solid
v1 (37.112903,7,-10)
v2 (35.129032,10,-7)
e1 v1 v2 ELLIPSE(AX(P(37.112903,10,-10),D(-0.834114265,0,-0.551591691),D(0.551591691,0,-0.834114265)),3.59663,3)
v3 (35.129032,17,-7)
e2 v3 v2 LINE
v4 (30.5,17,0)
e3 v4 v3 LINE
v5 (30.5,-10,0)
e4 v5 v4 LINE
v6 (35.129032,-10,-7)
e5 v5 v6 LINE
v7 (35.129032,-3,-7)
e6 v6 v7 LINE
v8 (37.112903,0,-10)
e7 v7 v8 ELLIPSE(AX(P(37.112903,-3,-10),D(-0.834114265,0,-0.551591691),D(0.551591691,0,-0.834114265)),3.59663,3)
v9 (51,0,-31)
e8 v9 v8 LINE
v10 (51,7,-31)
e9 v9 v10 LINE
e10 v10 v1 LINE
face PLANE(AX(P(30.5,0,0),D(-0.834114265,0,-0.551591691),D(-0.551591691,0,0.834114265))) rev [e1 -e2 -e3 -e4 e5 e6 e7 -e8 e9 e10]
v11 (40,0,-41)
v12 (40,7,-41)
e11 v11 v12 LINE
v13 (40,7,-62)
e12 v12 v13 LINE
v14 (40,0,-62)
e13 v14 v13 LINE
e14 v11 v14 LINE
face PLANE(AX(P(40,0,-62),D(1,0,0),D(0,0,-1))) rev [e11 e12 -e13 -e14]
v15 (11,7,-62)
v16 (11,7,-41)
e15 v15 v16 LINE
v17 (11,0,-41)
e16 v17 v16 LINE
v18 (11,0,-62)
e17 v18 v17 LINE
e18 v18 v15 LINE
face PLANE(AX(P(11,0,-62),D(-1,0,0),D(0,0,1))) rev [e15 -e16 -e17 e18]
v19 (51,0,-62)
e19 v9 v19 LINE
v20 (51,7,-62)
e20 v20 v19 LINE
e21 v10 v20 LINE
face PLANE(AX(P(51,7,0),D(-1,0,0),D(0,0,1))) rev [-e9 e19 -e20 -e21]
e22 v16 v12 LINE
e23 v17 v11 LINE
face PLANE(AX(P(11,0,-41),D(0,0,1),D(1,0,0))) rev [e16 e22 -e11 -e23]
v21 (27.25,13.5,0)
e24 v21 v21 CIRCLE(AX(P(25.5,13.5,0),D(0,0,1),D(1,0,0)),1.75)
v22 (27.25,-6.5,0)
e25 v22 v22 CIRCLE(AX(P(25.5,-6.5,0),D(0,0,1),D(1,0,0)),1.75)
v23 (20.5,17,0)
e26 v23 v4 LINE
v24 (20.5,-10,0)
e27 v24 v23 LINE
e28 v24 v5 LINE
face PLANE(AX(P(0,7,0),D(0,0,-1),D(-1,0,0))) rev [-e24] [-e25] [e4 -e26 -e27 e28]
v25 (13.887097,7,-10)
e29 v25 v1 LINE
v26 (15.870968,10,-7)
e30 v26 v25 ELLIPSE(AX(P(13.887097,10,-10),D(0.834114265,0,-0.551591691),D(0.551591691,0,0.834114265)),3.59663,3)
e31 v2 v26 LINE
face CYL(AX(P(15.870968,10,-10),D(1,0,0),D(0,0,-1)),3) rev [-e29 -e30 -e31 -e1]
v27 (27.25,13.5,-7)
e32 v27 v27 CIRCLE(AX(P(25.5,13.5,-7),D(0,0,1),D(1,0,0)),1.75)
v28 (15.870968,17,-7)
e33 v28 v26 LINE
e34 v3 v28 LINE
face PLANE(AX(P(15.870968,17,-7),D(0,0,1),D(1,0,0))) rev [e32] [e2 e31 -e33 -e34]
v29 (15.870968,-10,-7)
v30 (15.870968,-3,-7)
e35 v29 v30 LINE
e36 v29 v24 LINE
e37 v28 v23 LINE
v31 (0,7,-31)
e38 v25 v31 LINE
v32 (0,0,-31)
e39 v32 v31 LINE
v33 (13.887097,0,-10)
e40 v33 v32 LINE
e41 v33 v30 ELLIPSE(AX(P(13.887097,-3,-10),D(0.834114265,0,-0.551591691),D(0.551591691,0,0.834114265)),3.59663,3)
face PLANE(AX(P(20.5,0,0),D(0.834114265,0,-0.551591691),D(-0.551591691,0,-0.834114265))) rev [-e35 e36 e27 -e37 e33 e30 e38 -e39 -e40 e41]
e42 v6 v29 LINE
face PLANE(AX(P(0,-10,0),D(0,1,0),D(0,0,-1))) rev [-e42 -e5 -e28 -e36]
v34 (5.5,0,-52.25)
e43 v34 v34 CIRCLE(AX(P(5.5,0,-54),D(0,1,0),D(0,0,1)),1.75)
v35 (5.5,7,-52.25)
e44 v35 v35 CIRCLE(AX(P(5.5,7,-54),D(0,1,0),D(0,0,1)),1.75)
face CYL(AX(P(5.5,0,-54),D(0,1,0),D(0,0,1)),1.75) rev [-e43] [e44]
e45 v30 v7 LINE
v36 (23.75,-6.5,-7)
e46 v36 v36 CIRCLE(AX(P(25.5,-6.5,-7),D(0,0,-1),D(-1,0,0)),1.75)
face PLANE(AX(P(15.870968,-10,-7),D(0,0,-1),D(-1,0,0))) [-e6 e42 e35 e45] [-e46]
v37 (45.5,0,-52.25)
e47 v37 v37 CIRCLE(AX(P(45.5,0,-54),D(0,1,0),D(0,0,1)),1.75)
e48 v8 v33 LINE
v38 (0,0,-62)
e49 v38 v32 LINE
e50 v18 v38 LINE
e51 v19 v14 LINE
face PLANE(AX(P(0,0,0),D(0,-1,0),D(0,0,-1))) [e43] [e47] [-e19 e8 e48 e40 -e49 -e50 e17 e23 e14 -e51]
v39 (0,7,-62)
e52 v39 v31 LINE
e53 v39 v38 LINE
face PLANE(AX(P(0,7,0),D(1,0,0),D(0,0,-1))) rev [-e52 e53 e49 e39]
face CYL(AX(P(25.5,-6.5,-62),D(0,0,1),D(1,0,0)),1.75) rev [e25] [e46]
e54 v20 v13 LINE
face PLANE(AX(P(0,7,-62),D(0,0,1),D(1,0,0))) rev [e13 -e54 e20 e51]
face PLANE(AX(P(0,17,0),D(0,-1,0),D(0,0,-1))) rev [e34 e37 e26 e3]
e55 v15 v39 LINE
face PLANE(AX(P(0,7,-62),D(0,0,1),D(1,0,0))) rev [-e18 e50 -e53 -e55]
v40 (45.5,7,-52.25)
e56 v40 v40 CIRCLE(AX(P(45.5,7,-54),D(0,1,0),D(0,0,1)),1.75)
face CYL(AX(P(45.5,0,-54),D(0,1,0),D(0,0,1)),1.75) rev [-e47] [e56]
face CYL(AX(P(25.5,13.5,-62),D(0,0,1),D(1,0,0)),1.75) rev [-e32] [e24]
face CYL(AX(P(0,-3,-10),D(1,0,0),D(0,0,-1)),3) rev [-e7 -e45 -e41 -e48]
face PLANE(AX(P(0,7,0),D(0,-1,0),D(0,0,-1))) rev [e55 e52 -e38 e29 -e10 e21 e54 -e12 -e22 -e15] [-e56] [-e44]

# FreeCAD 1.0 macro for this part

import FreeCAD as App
import Part
import Sketcher

V = App.Vector


def edges_at(feature, points):
    """Names of the edges that pass closest to the given points."""
    edges = feature.Shape.Edges
    near = lambda p: min(range(len(edges)), key=lambda i: edges[i].distToShape(Part.Vertex(*p))[0])
    return sorted({f"Edge{near(p) + 1}" for p in points})


def add_polygon(sketch, points):
    """Adds a closed chain of lines whose ends are joined by coincident constraints."""
    first, n = sketch.GeometryCount, len(points)
    for a, b in zip(points, points[1:] + points[:1]):
        sketch.addGeometry(Part.LineSegment(App.Vector(*a, 0), App.Vector(*b, 0)), False)
    for i in range(n):
        sketch.addConstraint(Sketcher.Constraint("Coincident", first + i, 2, first + (i + 1) % n, 1))

doc = App.newDocument("Part")
body = doc.addObject("PartDesign::Body", "Body")

sketch1 = body.newObject("Sketcher::SketchObject", "Sketch")
sketch1.AttachmentSupport = (doc.getObject("XZ_Plane"), [""])
sketch1.MapMode = "FlatFace"
add_polygon(sketch1, [(0, -62), (0, 0), (51, 0), (51, -62)])
sketch1.addConstraint([
    Sketcher.Constraint("Vertical", 0),
    Sketcher.Constraint("Horizontal", 1),
    Sketcher.Constraint("Vertical", 2),
    Sketcher.Constraint("Horizontal", 3),
    Sketcher.Constraint("Coincident", 0, 2, -1, 1),
    Sketcher.Constraint("DistanceX", 1, 1, 1, 2, 51.0),
    Sketcher.Constraint("DistanceY", 0, 1, 0, 2, 62.0),
])
pad1 = body.newObject("PartDesign::Pad", "Pad")
pad1.Profile = sketch1
pad1.Length = 7
pad1.Reversed = True

sketch2 = body.newObject("Sketcher::SketchObject", "Sketch001")
sketch2.AttachmentSupport = (doc.getObject("XZ_Plane"), [""])
sketch2.MapMode = "FlatFace"
sketch2.AttachmentOffset = App.Placement(V(0, 0, -7), App.Rotation())
add_polygon(sketch2, [(11, -62), (11, -41), (40, -41), (40, -62)])
sketch2.addConstraint([
    Sketcher.Constraint("Vertical", 0),
    Sketcher.Constraint("Horizontal", 1),
    Sketcher.Constraint("Vertical", 2),
    Sketcher.Constraint("Horizontal", 3),
    Sketcher.Constraint("DistanceX", 1, 1, 1, 2, 29.0),
    Sketcher.Constraint("DistanceY", 0, 1, 0, 2, 21.0),
    Sketcher.Constraint("DistanceX", -1, 1, 0, 2, 11.0),
    Sketcher.Constraint("DistanceY", 0, 2, -1, 1, 41.0),
])
pocket1 = body.newObject("PartDesign::Pocket", "Pocket")
pocket1.Profile = sketch2
pocket1.Type = "ThroughAll"
pocket1.Reversed = True

sketch3 = body.newObject("Sketcher::SketchObject", "Sketch002")
sketch3.AttachmentSupport = (doc.getObject("XZ_Plane"), [""])
sketch3.MapMode = "FlatFace"
sketch3.AttachmentOffset = App.Placement(V(0, 0, -7), App.Rotation())
sketch3.addGeometry([
    Part.Circle(V(5.5, -54, 0), V(0, 0, 1), 1.8),
    Part.Circle(V(45.5, -54, 0), V(0, 0, 1), 1.8),
], False)
sketch3.addConstraint([
    Sketcher.Constraint("Equal", 0, 1),
    Sketcher.Constraint("Horizontal", 0, 3, 1, 3),
    Sketcher.Constraint("Diameter", 0, 3.5),
    Sketcher.Constraint("DistanceY", 0, 3, -1, 1, 54.0),
    Sketcher.Constraint("DistanceX", 0, 3, 1, 3, 40.0),
    Sketcher.Constraint("DistanceX", -1, 1, 0, 3, 5.5),
])
pocket2 = body.newObject("PartDesign::Pocket", "Pocket001")
pocket2.Profile = sketch3
pocket2.Type = "ThroughAll"
pocket2.Reversed = True

sketch4 = body.newObject("Sketcher::SketchObject", "Sketch003")
sketch4.AttachmentSupport = (doc.getObject("XZ_Plane"), [""])
sketch4.MapMode = "FlatFace"
sketch4.AttachmentOffset = App.Placement(V(0, 0, -7), App.Rotation())
add_polygon(sketch4, [(20, 0), (0, -31), (0, 0)])
add_polygon(sketch4, [(51, -31), (30, 0), (51, 0)])
sketch4.addConstraint([
    Sketcher.Constraint("Vertical", 1),
    Sketcher.Constraint("Horizontal", 2),
    Sketcher.Constraint("Horizontal", 4),
    Sketcher.Constraint("Vertical", 5),
    Sketcher.Constraint("Coincident", 1, 2, -1, 1),
    Sketcher.Constraint("PointOnObject", 3, 2, -1),
    Sketcher.Constraint("Horizontal", 0, 2, 5, 2),
    Sketcher.Constraint("Equal", 2, 4),
    Sketcher.Constraint("DistanceY", 1, 1, 1, 2, 31.0),
    Sketcher.Constraint("DistanceX", 2, 1, 2, 2, 20.5),
    Sketcher.Constraint("DistanceX", -1, 1, 4, 2, 51.0),
])
pocket3 = body.newObject("PartDesign::Pocket", "Pocket002")
pocket3.Profile = sketch4
pocket3.Type = "ThroughAll"
pocket3.Reversed = True

sketch5 = body.newObject("Sketcher::SketchObject", "Sketch004")
sketch5.AttachmentSupport = (doc.getObject("XZ_Plane"), [""])
sketch5.MapMode = "FlatFace"
sketch5.AttachmentOffset = App.Placement(V(0, 0, -7), App.Rotation())
add_polygon(sketch5, [(20, 0), (30, 0), (35, -7), (16, -7)])
sketch5.addConstraint([
    Sketcher.Constraint("Horizontal", 0),
    Sketcher.Constraint("Horizontal", 2),
    Sketcher.Constraint("PointOnObject", 0, 2, -1),
    Sketcher.Constraint("Equal", 1, 3),
    Sketcher.Constraint("DistanceX", 0, 1, 0, 2, 10.0),
    Sketcher.Constraint("DistanceY", 1, 2, -1, 1, 7.0),
    Sketcher.Constraint("DistanceX", -1, 1, 0, 2, 30.5),
    Sketcher.Constraint("DistanceX", 2, 2, 2, 1, 19.258065),
])
pad2 = body.newObject("PartDesign::Pad", "Pad001")
pad2.Profile = sketch5
pad2.Length = 10
pad2.Reversed = True
doc.recompute()

datumplane = body.newObject("PartDesign::Plane", "DatumPlane")
datumplane.AttachmentSupport = (doc.getObject("XZ_Plane"), [""])
datumplane.MapMode = "FlatFace"
datumplane.AttachmentOffset = App.Placement(V(0, 0, -3.5), App.Rotation())
mirrored = body.newObject("PartDesign::Mirrored", "Mirrored")
mirrored.Originals = [pad2]
mirrored.MirrorPlane = (datumplane, [""])
body.Tip = mirrored

sketch6 = body.newObject("Sketcher::SketchObject", "Sketch005")
sketch6.AttachmentSupport = (doc.getObject("XY_Plane"), [""])
sketch6.MapMode = "FlatFace"
sketch6.addGeometry([
    Part.Circle(V(25.5, 13.5, 0), V(0, 0, 1), 1.8),
    Part.Circle(V(25.5, -6.5, 0), V(0, 0, 1), 1.8),
], False)
sketch6.addConstraint([
    Sketcher.Constraint("Equal", 0, 1),
    Sketcher.Constraint("Vertical", 0, 3, 1, 3),
    Sketcher.Constraint("Diameter", 0, 3.5),
    Sketcher.Constraint("DistanceY", 1, 3, 0, 3, 20.0),
    Sketcher.Constraint("DistanceX", -1, 1, 0, 3, 25.5),
    Sketcher.Constraint("DistanceY", -1, 1, 0, 3, 13.5),
])
pocket4 = body.newObject("PartDesign::Pocket", "Pocket003")
pocket4.Profile = sketch6
pocket4.Type = "ThroughAll"
doc.recompute()

fillet = body.newObject("PartDesign::Fillet", "Fillet")
fillet.Base = (pocket4, edges_at(pocket4, [(25.5, 7, -7), (25.5, 0, -7)]))
fillet.Radius = 3

doc.recompute()
